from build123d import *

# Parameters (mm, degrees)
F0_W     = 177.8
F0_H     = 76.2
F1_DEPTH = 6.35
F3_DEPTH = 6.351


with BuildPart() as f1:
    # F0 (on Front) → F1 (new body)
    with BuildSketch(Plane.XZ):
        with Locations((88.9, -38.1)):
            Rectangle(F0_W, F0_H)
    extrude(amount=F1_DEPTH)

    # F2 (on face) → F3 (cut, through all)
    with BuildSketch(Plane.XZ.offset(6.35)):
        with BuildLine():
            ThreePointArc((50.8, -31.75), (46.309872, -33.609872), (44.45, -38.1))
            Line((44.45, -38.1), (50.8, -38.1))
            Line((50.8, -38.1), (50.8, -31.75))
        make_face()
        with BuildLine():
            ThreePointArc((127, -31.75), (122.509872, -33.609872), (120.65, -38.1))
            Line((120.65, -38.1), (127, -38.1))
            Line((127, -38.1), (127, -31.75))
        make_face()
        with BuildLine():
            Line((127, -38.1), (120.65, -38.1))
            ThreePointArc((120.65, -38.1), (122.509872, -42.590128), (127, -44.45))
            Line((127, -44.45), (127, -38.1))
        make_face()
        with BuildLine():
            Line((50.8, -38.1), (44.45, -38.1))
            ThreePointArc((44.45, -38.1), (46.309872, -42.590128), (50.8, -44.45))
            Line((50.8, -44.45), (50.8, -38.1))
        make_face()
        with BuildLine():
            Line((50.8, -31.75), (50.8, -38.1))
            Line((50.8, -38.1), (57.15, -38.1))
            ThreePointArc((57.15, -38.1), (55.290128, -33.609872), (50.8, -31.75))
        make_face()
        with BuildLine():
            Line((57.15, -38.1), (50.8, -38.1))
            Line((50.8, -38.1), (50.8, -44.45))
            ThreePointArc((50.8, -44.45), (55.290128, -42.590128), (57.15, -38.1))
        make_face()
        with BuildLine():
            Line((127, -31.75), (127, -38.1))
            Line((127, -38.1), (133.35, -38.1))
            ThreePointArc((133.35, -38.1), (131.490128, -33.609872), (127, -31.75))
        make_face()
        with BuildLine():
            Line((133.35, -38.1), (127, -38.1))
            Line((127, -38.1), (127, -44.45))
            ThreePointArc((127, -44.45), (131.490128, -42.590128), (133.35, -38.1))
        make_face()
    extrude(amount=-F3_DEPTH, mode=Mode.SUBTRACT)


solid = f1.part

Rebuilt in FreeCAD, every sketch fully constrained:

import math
import FreeCAD as App
import Part
import Sketcher
Q = App.Units.Quantity


def add_polygon(sketch, points):
    """Adds a closed chain of lines whose ends are joined by coincident constraints."""
    first, n = sketch.GeometryCount, len(points)
    for a, b in zip(points, points[1:] + points[:1]):
        sketch.addGeometry(Part.LineSegment(App.Vector(*a, 0), App.Vector(*b, 0)), False)
    for i in range(n):
        sketch.addConstraint(Sketcher.Constraint("Coincident", first + i, 2, first + (i + 1) % n, 1))

doc = App.newDocument("Part")
body = doc.addObject("PartDesign::Body", "Body")

# Sketch on XZ plane
sketch1 = body.newObject("Sketcher::SketchObject", "Sketch")
sketch1.AttachmentSupport = (doc.getObject("XZ_Plane"), [""])
sketch1.MapMode = "FlatFace"
add_polygon(sketch1, [(0, 0), (0, -76), (178, -76), (178, 0)])  # lines 0-3
sketch1.addConstraint([
    Sketcher.Constraint("Vertical", 0),
    Sketcher.Constraint("Horizontal", 1),
    Sketcher.Constraint("Vertical", 2),
    Sketcher.Constraint("Horizontal", 3),
    Sketcher.Constraint("Coincident", 3, 2, -1, 1),
    Sketcher.Constraint("DistanceX", 1, 1, 1, 2, Q("7 in")),
    Sketcher.Constraint("DistanceY", 0, 2, 0, 1, Q("3 in")),
])
pad1 = body.newObject("PartDesign::Pad", "Pad")
pad1.Profile = sketch1
pad1.Length = Q("0.25 in")

# Sketch on XZ plane
sketch2 = body.newObject("Sketcher::SketchObject", "Sketch001")
sketch2.AttachmentSupport = (doc.getObject("XZ_Plane"), [""])
sketch2.MapMode = "FlatFace"
sketch2.AttachmentOffset = App.Placement(App.Vector(0, 0, 0.25 * 25.4), App.Rotation())
sketch2.addGeometry([
    Part.ArcOfCircle(Part.Circle(App.Vector(51, -38, 0), App.Vector(0, 0, 1), 6), math.radians(90), math.radians(180)),  # 0
    Part.ArcOfCircle(Part.Circle(App.Vector(51, -38, 0), App.Vector(0, 0, 1), 6), math.radians(-180), math.radians(-90)),  # 1
    Part.ArcOfCircle(Part.Circle(App.Vector(51, -38, 0), App.Vector(0, 0, 1), 6), math.radians(-90), math.radians(0)),  # 2
    Part.ArcOfCircle(Part.Circle(App.Vector(51, -38, 0), App.Vector(0, 0, 1), 6), math.radians(0), math.radians(90)),  # 3
    Part.ArcOfCircle(Part.Circle(App.Vector(127, -38, 0), App.Vector(0, 0, 1), 6), math.radians(90), math.radians(180)),  # 4
    Part.ArcOfCircle(Part.Circle(App.Vector(127, -38, 0), App.Vector(0, 0, 1), 6), math.radians(-180), math.radians(-90)),  # 5
    Part.ArcOfCircle(Part.Circle(App.Vector(127, -38, 0), App.Vector(0, 0, 1), 6), math.radians(-90), math.radians(0)),  # 6
    Part.ArcOfCircle(Part.Circle(App.Vector(127, -38, 0), App.Vector(0, 0, 1), 6), math.radians(0), math.radians(90)),  # 7
], False)
sketch2.addConstraint([
    Sketcher.Constraint("Tangent", 0, 2, 1, 1),
    Sketcher.Constraint("Tangent", 1, 2, 2, 1),
    Sketcher.Constraint("Tangent", 2, 2, 3, 1),
    Sketcher.Constraint("Tangent", 3, 2, 0, 1),
    Sketcher.Constraint("Tangent", 4, 2, 5, 1),
    Sketcher.Constraint("Tangent", 5, 2, 6, 1),
    Sketcher.Constraint("Tangent", 6, 2, 7, 1),
    Sketcher.Constraint("Tangent", 7, 2, 4, 1),
    Sketcher.Constraint("Equal", 0, 1),
    Sketcher.Constraint("Equal", 3, 4),
    Sketcher.Constraint("Equal", 4, 5),
    Sketcher.Constraint("Horizontal", 3, 3, 4, 3),
    Sketcher.Constraint("Horizontal", 7, 3, 0, 2),
    Sketcher.Constraint("Horizontal", 0, 2, 2, 2),
    Sketcher.Constraint("Horizontal", 2, 2, 4, 2),
    Sketcher.Constraint("Horizontal", 4, 2, 6, 2),
    Sketcher.Constraint("Vertical", 3, 3, 1, 2),
    Sketcher.Constraint("Vertical", 1, 2, 3, 2),
    Sketcher.Constraint("Vertical", 7, 3, 5, 2),
    Sketcher.Constraint("Vertical", 5, 2, 7, 2),
    Sketcher.Constraint("Radius", 0, Q("0.25 in")),
    Sketcher.Constraint("DistanceX", -1, 1, 0, 3, Q("2 in")),
    Sketcher.Constraint("DistanceX", -1, 1, 4, 3, Q("5 in")),
    Sketcher.Constraint("DistanceY", 0, 3, -1, 1, Q("1.5 in")),
])
pocket1 = body.newObject("PartDesign::Pocket", "Pocket")
pocket1.Profile = sketch2
pocket1.Type = "ThroughAll"

doc.recompute()
